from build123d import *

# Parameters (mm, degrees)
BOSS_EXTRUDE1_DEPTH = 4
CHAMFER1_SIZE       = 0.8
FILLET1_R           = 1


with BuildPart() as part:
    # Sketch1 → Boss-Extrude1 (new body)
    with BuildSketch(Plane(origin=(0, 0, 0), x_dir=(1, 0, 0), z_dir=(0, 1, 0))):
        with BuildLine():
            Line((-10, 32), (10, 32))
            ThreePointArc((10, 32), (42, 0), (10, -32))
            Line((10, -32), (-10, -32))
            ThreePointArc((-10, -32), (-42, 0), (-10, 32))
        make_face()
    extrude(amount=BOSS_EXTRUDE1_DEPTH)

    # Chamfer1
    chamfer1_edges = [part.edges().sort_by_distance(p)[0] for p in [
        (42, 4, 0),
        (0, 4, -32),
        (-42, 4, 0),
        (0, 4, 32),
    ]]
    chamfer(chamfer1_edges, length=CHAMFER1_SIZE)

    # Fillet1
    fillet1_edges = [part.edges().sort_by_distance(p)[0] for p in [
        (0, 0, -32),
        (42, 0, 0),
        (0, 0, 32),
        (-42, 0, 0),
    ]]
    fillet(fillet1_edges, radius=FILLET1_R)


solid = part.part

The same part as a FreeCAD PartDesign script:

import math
import FreeCAD as App
import Part
import Sketcher
from FreeCAD import Vector
Q = App.Units.Quantity


def edges_at(feature, points):
    """Names of the edges that pass closest to the given points."""
    edges = feature.Shape.Edges
    near = lambda p: min(range(len(edges)), key=lambda i: edges[i].distToShape(Part.Vertex(*p))[0])
    return sorted({f"Edge{near(p) + 1}" for p in points})

doc = App.newDocument("Part")
params = doc.addObject("Spreadsheet::Sheet", "Params")
for row, (alias, value) in enumerate([
    ("sketch1_radius", "32 mm"),
    ("sketch1_width", "20 mm"),
    ("pad1_length", "4 mm"),
    ("chamfer_size", "0.8 mm"),
    ("fillet_radius", "1 mm"),
], start=1):
    params.set(f"A{row}", alias)
    params.set(f"B{row}", "=" + value)
    params.setAlias(f"B{row}", alias)

body = doc.addObject("PartDesign::Body", "Body")

# Sketch on XZ plane
sketch1 = doc.addObject("Sketcher::SketchObject", "Sketch")
body.addObject(sketch1)
sketch1.AttachmentSupport = (doc.XZ_Plane, [""])
sketch1.MapMode = "FlatFace"
sketch1.addGeometry([
    Part.LineSegment(Vector(10, -32, 0), Vector(-10, -32, 0)),
    Part.ArcOfCircle(Part.Circle(Vector(-10, 0, 0), Vector(0, 0, 1), 32), math.radians(90), math.radians(270)),
    Part.LineSegment(Vector(-10, 32, 0), Vector(10, 32, 0)),
    Part.ArcOfCircle(Part.Circle(Vector(10, 0, 0), Vector(0, 0, 1), 32), math.radians(-90), math.radians(90)),
], False)
sketch1.addConstraint([
    Sketcher.Constraint("Tangent", 0, 2, 1, 2),
    Sketcher.Constraint("Tangent", 1, 1, 2, 1),
    Sketcher.Constraint("Tangent", 2, 2, 3, 2),
    Sketcher.Constraint("Tangent", 3, 1, 0, 1),
    Sketcher.Constraint("Horizontal", 0),
    Sketcher.Constraint("Horizontal", 2),
    Sketcher.Constraint("Symmetric", 1, 3, 3, 3, -1, 1),
    Sketcher.Constraint("Radius", 1, Q("32 mm")),
    Sketcher.Constraint("DistanceX", 0, 2, 0, 1, Q("20 mm")),
])
sketch1.setExpression("Constraints[7]", "Params.sketch1_radius")
sketch1.setExpression("Constraints[8]", "Params.sketch1_width")
pad1 = doc.addObject("PartDesign::Pad", "Pad")
body.addObject(pad1)
pad1.Profile = sketch1
pad1.setExpression("Length", "Params.pad1_length")
pad1.Reversed = True
doc.recompute()

chamfer = doc.addObject("PartDesign::Chamfer", "Chamfer")
body.addObject(chamfer)
chamfer.Base = (pad1, edges_at(pad1, [
    (42, 4, 0),
    (0, 4, -32),
    (-42, 4, 0),
    (0, 4, 32),
]))
chamfer.setExpression("Size", "Params.chamfer_size")
doc.recompute()

fillet = doc.addObject("PartDesign::Fillet", "Fillet")
body.addObject(fillet)
fillet.Base = (chamfer, edges_at(chamfer, [
    (0, 0, -32),
    (42, 0, 0),
    (0, 0, 32),
    (-42, 0, 0),
]))
fillet.setExpression("Radius", "Params.fillet_radius")

doc.recompute()
